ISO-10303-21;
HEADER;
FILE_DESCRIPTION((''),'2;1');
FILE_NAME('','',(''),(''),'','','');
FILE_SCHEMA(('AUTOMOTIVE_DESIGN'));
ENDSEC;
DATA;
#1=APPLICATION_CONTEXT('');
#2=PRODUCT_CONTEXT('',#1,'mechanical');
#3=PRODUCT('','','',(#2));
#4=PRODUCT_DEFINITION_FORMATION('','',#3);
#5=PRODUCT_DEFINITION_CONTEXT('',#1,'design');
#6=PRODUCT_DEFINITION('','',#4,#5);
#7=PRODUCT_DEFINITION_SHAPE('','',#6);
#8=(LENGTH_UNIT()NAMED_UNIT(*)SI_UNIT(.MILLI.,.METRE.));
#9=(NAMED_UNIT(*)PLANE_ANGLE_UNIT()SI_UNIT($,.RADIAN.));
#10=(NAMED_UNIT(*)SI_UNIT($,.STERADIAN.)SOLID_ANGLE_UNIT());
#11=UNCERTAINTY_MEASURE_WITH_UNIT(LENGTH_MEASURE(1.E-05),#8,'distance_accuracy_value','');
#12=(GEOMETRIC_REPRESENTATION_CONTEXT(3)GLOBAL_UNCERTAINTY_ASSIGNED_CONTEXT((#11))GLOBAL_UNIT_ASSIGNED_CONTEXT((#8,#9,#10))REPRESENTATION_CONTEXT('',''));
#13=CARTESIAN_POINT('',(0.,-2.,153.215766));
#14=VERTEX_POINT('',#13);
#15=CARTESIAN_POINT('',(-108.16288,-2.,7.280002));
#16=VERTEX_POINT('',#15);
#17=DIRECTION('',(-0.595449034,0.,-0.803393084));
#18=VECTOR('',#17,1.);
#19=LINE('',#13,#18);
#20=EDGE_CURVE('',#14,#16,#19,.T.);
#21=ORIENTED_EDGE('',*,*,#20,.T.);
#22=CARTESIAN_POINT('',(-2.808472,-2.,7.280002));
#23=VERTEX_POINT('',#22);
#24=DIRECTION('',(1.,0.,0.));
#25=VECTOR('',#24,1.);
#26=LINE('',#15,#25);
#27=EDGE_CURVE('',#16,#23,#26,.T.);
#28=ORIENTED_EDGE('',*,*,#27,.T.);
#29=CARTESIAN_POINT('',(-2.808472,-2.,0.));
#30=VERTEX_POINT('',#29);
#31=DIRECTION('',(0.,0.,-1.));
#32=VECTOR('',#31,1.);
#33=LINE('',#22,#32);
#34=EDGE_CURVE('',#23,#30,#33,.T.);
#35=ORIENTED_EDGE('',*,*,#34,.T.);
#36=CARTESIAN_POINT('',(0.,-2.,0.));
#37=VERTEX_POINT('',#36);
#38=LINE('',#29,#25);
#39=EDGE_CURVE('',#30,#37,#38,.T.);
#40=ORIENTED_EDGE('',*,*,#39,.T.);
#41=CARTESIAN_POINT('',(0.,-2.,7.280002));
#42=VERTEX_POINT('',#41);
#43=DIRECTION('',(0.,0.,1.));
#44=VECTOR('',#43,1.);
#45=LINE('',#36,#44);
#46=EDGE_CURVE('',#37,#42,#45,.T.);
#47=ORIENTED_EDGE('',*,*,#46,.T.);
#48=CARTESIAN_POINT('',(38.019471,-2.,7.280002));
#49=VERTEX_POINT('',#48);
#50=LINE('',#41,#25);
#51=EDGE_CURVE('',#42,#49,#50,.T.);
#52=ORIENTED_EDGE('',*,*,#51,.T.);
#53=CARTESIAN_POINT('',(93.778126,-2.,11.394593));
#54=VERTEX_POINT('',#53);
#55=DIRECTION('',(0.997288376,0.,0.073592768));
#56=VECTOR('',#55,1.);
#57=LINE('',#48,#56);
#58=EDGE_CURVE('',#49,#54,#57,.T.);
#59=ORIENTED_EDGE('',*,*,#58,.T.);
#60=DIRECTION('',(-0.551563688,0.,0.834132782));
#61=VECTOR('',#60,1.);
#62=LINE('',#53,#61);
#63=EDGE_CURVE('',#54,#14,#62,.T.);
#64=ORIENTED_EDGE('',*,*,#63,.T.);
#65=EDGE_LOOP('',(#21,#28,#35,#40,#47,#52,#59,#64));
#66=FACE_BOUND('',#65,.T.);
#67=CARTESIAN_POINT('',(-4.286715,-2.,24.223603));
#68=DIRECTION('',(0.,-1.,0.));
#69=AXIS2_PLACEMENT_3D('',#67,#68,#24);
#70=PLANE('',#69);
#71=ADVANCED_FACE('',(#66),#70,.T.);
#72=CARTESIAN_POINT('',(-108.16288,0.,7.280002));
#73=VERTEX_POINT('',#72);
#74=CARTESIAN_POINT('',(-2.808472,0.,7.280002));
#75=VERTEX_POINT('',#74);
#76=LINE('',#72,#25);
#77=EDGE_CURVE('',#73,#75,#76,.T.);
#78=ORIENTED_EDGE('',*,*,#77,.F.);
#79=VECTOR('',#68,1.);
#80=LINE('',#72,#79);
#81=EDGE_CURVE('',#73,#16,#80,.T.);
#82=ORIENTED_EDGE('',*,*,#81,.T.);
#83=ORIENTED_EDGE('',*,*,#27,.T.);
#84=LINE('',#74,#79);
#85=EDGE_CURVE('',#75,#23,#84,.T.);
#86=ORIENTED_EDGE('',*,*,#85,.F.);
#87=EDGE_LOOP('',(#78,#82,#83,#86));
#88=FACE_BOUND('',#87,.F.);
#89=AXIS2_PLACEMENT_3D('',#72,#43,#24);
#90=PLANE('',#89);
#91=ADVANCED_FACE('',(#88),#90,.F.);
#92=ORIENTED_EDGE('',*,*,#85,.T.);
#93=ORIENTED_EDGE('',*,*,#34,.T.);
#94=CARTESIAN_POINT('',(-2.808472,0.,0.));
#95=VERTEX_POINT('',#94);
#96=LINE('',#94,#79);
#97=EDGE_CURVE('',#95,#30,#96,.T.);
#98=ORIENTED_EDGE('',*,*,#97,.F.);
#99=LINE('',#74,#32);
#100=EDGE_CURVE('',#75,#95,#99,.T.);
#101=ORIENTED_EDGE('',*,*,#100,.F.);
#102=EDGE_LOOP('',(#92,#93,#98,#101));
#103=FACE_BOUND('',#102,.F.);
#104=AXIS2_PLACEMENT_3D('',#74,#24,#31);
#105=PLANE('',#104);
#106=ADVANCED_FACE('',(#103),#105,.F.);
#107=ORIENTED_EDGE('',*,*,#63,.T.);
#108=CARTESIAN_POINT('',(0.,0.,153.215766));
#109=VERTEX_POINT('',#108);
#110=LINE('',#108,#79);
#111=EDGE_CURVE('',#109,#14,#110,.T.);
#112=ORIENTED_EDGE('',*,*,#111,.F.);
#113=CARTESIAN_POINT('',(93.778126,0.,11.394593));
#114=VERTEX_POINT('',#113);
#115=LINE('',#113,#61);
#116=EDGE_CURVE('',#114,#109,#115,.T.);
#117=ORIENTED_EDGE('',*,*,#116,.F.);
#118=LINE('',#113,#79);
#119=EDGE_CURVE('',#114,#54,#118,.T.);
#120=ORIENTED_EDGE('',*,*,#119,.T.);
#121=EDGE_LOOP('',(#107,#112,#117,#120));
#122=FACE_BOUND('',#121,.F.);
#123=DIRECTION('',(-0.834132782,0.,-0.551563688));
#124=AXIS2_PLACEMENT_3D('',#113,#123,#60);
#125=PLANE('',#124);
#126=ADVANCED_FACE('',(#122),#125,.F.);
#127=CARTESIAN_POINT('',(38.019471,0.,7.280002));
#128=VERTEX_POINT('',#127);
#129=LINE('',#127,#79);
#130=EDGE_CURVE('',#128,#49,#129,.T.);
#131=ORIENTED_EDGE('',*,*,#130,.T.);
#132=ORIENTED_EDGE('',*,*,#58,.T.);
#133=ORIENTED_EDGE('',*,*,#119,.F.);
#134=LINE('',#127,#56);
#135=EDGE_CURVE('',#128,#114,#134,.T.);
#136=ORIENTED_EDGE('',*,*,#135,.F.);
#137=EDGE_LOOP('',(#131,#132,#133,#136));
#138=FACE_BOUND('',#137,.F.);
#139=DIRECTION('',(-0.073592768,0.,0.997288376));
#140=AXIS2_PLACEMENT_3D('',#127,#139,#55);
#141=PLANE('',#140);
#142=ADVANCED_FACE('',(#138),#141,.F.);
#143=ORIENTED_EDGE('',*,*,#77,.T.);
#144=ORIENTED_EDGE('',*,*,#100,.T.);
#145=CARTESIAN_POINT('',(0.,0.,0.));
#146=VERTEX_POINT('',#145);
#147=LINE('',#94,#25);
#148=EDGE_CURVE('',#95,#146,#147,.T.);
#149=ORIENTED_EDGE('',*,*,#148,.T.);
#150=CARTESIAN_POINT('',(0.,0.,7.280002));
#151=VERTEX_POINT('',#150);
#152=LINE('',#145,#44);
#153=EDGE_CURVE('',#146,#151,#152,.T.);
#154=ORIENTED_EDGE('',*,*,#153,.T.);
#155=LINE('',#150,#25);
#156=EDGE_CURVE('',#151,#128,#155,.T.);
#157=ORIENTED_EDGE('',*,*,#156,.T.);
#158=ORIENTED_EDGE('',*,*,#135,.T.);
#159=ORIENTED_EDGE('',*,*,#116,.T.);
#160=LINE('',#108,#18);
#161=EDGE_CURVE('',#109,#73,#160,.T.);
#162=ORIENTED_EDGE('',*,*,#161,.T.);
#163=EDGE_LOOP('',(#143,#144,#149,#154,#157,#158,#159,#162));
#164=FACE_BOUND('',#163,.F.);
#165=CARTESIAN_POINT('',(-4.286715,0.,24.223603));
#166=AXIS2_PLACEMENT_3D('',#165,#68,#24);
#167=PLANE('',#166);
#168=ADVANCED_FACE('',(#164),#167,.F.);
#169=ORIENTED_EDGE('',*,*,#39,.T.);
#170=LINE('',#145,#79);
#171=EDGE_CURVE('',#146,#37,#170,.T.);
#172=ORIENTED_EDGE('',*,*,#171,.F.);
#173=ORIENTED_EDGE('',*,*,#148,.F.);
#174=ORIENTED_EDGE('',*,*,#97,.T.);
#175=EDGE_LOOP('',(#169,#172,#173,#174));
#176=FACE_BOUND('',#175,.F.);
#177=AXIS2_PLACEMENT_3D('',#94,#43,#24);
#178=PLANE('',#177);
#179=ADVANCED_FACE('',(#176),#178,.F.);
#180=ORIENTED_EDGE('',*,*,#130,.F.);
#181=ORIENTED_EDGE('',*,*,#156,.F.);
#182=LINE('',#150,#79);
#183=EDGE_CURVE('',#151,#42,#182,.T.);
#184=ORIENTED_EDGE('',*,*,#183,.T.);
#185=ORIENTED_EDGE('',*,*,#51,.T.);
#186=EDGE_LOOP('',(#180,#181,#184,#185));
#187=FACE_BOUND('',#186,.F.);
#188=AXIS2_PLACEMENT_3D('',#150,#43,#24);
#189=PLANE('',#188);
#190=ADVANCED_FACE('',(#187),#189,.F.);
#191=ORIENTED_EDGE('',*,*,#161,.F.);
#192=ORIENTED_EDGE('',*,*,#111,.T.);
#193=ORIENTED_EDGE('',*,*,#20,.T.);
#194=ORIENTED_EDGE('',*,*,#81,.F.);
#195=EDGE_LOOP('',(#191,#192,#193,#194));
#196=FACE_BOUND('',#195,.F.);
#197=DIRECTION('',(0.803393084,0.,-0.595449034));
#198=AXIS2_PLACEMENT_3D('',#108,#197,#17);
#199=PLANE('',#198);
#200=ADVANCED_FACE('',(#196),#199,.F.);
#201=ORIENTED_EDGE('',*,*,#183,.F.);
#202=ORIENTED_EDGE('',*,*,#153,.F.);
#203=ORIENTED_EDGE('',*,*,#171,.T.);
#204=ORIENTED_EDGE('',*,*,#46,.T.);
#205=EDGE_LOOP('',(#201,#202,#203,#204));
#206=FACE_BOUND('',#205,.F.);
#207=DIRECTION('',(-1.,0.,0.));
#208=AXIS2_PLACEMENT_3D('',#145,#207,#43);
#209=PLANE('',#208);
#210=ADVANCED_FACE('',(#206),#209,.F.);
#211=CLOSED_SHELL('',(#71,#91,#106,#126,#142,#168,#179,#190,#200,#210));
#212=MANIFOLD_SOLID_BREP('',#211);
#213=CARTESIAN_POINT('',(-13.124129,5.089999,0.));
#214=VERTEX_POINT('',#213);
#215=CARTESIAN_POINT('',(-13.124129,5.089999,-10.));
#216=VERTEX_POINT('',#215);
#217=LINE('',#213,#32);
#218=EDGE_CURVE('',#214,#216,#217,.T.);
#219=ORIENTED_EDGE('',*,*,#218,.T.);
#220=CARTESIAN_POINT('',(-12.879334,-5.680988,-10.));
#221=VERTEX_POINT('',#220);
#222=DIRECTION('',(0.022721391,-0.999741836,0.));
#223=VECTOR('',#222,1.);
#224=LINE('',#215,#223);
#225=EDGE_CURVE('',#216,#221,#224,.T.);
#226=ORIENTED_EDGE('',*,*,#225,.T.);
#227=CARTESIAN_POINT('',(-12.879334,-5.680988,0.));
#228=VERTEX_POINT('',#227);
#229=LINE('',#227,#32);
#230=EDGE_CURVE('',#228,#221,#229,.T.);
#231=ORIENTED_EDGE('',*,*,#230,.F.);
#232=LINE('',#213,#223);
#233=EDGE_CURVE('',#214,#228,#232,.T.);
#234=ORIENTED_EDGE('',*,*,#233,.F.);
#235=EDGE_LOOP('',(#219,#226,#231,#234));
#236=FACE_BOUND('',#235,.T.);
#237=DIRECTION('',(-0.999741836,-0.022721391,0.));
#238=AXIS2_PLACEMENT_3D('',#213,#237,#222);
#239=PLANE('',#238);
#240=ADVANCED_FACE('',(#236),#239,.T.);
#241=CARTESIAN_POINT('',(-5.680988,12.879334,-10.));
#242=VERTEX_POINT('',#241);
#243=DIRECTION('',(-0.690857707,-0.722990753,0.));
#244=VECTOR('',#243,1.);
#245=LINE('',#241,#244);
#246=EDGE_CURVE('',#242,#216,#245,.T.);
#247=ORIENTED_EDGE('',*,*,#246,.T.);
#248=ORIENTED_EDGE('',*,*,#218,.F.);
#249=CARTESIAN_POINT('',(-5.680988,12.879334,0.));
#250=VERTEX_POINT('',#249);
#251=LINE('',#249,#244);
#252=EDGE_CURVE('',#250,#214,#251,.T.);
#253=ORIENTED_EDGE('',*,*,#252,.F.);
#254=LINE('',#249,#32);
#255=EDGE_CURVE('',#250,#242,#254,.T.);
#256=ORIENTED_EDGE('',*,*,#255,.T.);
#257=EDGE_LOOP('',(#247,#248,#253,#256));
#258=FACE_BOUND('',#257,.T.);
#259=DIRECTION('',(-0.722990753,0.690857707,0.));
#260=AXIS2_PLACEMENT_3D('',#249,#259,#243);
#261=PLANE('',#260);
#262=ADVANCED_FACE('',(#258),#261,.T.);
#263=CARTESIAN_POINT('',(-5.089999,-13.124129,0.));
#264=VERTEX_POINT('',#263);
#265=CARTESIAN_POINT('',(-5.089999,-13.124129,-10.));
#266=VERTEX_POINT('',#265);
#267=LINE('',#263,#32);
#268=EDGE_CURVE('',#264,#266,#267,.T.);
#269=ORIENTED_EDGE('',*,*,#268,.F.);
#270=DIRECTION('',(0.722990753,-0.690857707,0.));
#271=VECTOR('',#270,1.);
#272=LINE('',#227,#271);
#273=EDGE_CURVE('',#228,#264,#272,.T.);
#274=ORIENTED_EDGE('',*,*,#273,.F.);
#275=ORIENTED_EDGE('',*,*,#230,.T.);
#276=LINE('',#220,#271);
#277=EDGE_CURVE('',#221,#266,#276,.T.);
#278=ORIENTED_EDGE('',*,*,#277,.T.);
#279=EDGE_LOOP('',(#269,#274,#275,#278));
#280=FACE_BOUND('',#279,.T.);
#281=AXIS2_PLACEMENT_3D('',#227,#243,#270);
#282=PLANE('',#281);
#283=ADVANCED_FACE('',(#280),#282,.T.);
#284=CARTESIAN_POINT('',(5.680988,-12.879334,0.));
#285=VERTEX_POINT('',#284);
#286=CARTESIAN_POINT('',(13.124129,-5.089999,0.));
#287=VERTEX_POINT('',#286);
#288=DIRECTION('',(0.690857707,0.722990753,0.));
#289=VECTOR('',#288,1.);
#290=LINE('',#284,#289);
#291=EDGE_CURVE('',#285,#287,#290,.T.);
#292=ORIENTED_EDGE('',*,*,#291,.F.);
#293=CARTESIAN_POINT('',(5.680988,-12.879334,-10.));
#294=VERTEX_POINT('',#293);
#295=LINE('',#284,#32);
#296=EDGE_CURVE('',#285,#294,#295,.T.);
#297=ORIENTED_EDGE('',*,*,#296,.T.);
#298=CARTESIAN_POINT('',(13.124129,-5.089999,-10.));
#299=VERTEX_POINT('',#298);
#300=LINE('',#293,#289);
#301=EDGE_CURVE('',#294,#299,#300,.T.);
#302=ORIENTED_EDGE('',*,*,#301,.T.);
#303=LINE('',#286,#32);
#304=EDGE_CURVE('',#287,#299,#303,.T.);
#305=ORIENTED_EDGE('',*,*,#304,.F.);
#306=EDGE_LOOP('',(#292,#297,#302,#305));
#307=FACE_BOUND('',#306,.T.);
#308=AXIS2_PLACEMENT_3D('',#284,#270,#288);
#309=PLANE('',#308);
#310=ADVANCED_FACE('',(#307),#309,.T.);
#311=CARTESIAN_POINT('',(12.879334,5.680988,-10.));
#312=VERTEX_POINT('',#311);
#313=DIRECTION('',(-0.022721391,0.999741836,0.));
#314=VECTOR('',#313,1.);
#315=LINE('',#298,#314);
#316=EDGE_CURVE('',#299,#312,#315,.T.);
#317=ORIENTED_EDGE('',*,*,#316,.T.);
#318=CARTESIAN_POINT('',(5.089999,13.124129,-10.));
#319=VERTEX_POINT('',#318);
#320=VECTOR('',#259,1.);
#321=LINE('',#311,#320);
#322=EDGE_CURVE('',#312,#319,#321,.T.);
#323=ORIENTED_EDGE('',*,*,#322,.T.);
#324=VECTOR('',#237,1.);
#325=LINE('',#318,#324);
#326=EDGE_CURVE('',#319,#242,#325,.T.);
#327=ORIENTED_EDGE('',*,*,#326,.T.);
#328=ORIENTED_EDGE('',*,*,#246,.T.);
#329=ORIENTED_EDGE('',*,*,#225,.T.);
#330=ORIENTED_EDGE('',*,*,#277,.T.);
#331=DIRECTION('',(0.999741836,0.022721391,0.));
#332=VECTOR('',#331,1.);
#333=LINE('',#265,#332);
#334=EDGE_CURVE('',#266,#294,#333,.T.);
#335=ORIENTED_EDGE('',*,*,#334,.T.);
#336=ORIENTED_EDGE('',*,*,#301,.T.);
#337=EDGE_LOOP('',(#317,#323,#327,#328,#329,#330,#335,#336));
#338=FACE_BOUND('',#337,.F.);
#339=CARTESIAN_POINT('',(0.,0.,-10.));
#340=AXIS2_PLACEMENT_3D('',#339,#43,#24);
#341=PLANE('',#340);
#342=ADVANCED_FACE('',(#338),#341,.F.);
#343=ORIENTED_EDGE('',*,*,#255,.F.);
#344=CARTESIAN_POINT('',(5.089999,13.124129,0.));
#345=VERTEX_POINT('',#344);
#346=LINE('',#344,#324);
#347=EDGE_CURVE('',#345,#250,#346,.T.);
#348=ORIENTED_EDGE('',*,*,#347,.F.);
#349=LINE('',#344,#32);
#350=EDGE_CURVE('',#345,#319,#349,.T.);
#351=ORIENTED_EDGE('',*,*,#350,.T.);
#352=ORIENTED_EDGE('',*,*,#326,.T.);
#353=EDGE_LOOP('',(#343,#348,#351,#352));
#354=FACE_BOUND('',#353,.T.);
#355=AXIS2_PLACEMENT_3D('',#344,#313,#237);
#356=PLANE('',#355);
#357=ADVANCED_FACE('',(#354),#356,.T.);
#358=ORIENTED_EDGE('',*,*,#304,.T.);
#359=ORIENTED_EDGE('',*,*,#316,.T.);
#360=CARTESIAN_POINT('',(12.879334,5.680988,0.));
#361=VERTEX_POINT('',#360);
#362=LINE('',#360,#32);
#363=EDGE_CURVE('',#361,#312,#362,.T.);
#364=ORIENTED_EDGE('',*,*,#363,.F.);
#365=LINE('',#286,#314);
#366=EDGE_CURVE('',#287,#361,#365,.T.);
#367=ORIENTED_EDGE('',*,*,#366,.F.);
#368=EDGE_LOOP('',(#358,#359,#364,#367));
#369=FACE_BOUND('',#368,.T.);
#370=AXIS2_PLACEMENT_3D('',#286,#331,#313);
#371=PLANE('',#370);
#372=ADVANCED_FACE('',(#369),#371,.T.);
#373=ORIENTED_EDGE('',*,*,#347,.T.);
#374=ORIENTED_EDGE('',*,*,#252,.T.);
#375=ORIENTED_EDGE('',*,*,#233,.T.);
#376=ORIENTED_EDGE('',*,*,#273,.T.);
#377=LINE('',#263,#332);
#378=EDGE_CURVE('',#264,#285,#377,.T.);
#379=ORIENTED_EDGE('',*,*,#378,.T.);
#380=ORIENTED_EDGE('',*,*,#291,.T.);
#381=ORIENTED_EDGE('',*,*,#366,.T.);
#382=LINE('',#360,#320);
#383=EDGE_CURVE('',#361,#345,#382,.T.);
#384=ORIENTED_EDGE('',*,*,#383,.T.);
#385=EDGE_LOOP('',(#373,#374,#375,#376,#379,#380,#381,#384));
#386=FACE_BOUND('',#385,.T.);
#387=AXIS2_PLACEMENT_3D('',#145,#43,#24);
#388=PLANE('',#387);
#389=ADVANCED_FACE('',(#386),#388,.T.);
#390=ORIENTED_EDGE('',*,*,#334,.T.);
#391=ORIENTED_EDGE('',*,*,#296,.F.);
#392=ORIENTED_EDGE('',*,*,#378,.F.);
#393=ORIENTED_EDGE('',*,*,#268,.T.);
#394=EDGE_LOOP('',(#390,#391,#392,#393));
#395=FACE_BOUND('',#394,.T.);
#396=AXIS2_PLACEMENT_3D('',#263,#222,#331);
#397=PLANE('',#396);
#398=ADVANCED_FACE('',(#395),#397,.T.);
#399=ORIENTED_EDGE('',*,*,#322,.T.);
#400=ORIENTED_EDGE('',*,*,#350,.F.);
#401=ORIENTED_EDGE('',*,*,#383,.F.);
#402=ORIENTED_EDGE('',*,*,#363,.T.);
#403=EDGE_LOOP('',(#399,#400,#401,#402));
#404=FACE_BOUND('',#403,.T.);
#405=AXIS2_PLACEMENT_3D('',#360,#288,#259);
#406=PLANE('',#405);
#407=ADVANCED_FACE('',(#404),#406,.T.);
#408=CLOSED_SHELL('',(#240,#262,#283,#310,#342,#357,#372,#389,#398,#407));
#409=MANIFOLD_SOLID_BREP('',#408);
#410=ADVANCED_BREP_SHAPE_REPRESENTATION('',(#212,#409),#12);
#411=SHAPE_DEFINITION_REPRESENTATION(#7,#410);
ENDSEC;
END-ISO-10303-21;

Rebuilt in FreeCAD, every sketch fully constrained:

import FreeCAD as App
import Part
import Sketcher
Q = App.Units.Quantity

doc = App.newDocument("Part")
body = doc.addObject("PartDesign::Body", "Body")

sketch1 = body.newObject("Sketcher::SketchObject", "Sketch")
sketch1.AttachmentSupport = (doc.getObject("XY_Plane"), [""])
sketch1.MapMode = "FlatFace"
sketch1.addGeometry(Part.LineSegment(App.Vector(-6, 13, 0), App.Vector(-13, 5, 0)), False)
sketch1.addGeometry(Part.LineSegment(App.Vector(-13, 5, 0), App.Vector(-13, -6, 0)), False)
sketch1.addGeometry(Part.LineSegment(App.Vector(-13, -6, 0), App.Vector(-5, -13, 0)), False)
sketch1.addGeometry(Part.LineSegment(App.Vector(-5, -13, 0), App.Vector(6, -13, 0)), False)
sketch1.addGeometry(Part.LineSegment(App.Vector(6, -13, 0), App.Vector(13, -5, 0)), False)
sketch1.addGeometry(Part.LineSegment(App.Vector(13, -5, 0), App.Vector(13, 6, 0)), False)
sketch1.addGeometry(Part.LineSegment(App.Vector(13, 6, 0), App.Vector(5, 13, 0)), False)
sketch1.addGeometry(Part.LineSegment(App.Vector(5, 13, 0), App.Vector(-6, 13, 0)), False)
sketch1.addConstraint(Sketcher.Constraint("Coincident", 0, 2, 1, 1))
sketch1.addConstraint(Sketcher.Constraint("Coincident", 1, 2, 2, 1))
sketch1.addConstraint(Sketcher.Constraint("Coincident", 2, 2, 3, 1))
sketch1.addConstraint(Sketcher.Constraint("Coincident", 3, 2, 4, 1))
sketch1.addConstraint(Sketcher.Constraint("Coincident", 4, 2, 5, 1))
sketch1.addConstraint(Sketcher.Constraint("Coincident", 5, 2, 6, 1))
sketch1.addConstraint(Sketcher.Constraint("Coincident", 6, 2, 7, 1))
sketch1.addConstraint(Sketcher.Constraint("Coincident", 7, 2, 0, 1))
sketch1.addConstraint(Sketcher.Constraint("Symmetric", 0, 2, 4, 2, -1, 1))
sketch1.addConstraint(Sketcher.Constraint("Symmetric", 1, 2, 5, 2, -1, 1))
sketch1.addConstraint(Sketcher.Constraint("Symmetric", 2, 2, 6, 2, -1, 1))
sketch1.addConstraint(Sketcher.Constraint("Symmetric", 3, 2, 7, 2, -1, 1))
sketch1.addConstraint(Sketcher.Constraint("Perpendicular", 0, 2))
sketch1.addConstraint(Sketcher.Constraint("Perpendicular", 1, 3))
sketch1.addConstraint(Sketcher.Constraint("Equal", 0, 1))
sketch1.addConstraint(Sketcher.Constraint("Equal", 1, 2))
sketch1.addConstraint(Sketcher.Constraint("Equal", 2, 3))
sketch1.addConstraint(Sketcher.Constraint("DistanceY", -1, 1, 0, 2, Q("5.089999 mm")))
sketch1.addConstraint(Sketcher.Constraint("Distance", 0, Q("10.773768 mm")))
sketch1.addConstraint(Sketcher.Constraint("DistanceX", 0, 2, -1, 1, Q("13.124129 mm")))
pad1 = body.newObject("PartDesign::Pad", "Pad")
pad1.Profile = sketch1
pad1.Length = 10
pad1.Reversed = True
body2 = doc.addObject("PartDesign::Body", "Body001")

sketch2 = body2.newObject("Sketcher::SketchObject", "Sketch001")
sketch2.AttachmentSupport = (doc.getObject("XZ_Plane001"), [""])
sketch2.MapMode = "FlatFace"
sketch2.addGeometry(Part.LineSegment(App.Vector(-2.8, 0, 0), App.Vector(0, 0, 0)), False)
sketch2.addGeometry(Part.LineSegment(App.Vector(0, 0, 0), App.Vector(0, 7.3, 0)), False)
sketch2.addGeometry(Part.LineSegment(App.Vector(0, 7.3, 0), App.Vector(38, 7.3, 0)), False)
sketch2.addGeometry(Part.LineSegment(App.Vector(38, 7.3, 0), App.Vector(93.8, 11.4, 0)), False)
sketch2.addGeometry(Part.LineSegment(App.Vector(93.8, 11.4, 0), App.Vector(0, 153.2, 0)), False)
sketch2.addGeometry(Part.LineSegment(App.Vector(0, 153.2, 0), App.Vector(-108.2, 7.3, 0)), False)
sketch2.addGeometry(Part.LineSegment(App.Vector(-108.2, 7.3, 0), App.Vector(-2.8, 7.3, 0)), False)
sketch2.addGeometry(Part.LineSegment(App.Vector(-2.8, 7.3, 0), App.Vector(-2.8, 0, 0)), False)
sketch2.addConstraint(Sketcher.Constraint("Coincident", 0, 2, 1, 1))
sketch2.addConstraint(Sketcher.Constraint("Coincident", 1, 2, 2, 1))
sketch2.addConstraint(Sketcher.Constraint("Coincident", 2, 2, 3, 1))
sketch2.addConstraint(Sketcher.Constraint("Coincident", 3, 2, 4, 1))
sketch2.addConstraint(Sketcher.Constraint("Coincident", 4, 2, 5, 1))
sketch2.addConstraint(Sketcher.Constraint("Coincident", 5, 2, 6, 1))
sketch2.addConstraint(Sketcher.Constraint("Coincident", 6, 2, 7, 1))
sketch2.addConstraint(Sketcher.Constraint("Coincident", 7, 2, 0, 1))
sketch2.addConstraint(Sketcher.Constraint("Horizontal", 0))
sketch2.addConstraint(Sketcher.Constraint("Vertical", 1))
sketch2.addConstraint(Sketcher.Constraint("Horizontal", 2))
sketch2.addConstraint(Sketcher.Constraint("Horizontal", 6))
sketch2.addConstraint(Sketcher.Constraint("Vertical", 7))
sketch2.addConstraint(Sketcher.Constraint("Coincident", 0, 2, -1, 1))
sketch2.addConstraint(Sketcher.Constraint("PointOnObject", 4, 2, -2))
sketch2.addConstraint(Sketcher.Constraint("Horizontal", 2, 2, 5, 2))
sketch2.addConstraint(Sketcher.Constraint("DistanceY", 1, 1, 1, 2, Q("7.280002 mm")))
sketch2.addConstraint(Sketcher.Constraint("Distance", 4, Q("170.022299 mm")))
sketch2.addConstraint(Sketcher.Constraint("DistanceX", 2, 1, 2, 2, Q("38.019471 mm")))
sketch2.addConstraint(Sketcher.Constraint("DistanceX", 6, 1, 6, 2, Q("105.354408 mm")))
sketch2.addConstraint(Sketcher.Constraint("DistanceX", 0, 1, 0, 2, Q("2.808472 mm")))
sketch2.addConstraint(Sketcher.Constraint("DistanceY", 2, 2, 3, 2, Q("4.114591 mm")))
sketch2.addConstraint(Sketcher.Constraint("Distance", 3, Q("55.910263 mm")))
pad2 = body2.newObject("PartDesign::Pad", "Pad001")
pad2.Profile = sketch2
pad2.Length = 2

doc.recompute()
